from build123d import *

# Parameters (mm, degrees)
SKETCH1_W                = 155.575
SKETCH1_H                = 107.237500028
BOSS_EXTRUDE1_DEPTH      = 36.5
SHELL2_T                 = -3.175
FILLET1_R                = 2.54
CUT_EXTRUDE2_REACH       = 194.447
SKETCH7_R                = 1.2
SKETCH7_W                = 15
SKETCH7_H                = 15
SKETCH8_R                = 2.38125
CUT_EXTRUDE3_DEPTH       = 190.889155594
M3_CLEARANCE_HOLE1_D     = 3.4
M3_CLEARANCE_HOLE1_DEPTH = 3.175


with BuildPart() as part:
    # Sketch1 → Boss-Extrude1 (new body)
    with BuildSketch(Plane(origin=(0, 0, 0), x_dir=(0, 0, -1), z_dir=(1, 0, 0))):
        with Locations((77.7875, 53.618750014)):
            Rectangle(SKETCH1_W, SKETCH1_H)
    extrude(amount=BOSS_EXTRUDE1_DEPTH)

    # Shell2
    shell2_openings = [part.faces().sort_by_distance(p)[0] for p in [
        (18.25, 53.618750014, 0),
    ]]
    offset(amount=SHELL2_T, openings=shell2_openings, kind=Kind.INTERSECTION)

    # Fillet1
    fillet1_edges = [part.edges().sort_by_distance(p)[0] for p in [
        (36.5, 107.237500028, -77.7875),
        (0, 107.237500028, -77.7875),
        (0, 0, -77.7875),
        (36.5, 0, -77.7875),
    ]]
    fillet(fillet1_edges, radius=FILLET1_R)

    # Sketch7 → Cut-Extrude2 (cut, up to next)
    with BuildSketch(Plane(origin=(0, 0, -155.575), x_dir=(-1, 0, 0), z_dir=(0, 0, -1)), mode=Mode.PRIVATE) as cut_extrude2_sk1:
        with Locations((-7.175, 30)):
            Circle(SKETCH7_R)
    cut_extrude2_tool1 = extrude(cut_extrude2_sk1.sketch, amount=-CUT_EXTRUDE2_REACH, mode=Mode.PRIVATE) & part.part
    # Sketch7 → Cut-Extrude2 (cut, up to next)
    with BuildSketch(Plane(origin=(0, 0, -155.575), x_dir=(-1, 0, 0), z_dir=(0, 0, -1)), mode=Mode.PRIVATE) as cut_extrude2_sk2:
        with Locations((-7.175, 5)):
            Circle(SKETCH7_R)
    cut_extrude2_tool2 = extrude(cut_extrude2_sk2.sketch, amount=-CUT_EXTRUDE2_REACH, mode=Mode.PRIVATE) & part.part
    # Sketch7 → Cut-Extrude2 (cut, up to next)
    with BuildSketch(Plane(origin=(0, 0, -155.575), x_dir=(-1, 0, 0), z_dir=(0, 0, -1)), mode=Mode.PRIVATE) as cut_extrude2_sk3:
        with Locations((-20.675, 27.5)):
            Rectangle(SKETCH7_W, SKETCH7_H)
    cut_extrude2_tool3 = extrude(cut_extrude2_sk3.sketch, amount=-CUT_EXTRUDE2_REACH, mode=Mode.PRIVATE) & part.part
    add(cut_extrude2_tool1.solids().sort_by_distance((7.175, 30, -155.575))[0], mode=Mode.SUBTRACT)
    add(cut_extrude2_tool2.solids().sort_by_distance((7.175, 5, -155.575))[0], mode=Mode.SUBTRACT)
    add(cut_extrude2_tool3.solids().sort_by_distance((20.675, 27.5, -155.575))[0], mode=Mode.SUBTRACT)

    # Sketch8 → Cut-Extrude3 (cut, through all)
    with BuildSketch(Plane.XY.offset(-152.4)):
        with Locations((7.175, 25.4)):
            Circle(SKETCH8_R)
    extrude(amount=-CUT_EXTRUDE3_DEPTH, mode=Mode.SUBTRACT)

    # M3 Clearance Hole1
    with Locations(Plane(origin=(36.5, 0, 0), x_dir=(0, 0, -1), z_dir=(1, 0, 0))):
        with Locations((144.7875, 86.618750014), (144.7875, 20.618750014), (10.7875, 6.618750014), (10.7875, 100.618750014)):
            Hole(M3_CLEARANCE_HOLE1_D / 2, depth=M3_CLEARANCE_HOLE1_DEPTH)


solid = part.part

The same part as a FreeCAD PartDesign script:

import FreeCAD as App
import Part
import Sketcher

V = App.Vector


def edges_at(feature, points):
    """Names of the edges that pass closest to the given points."""
    edges = feature.Shape.Edges
    near = lambda p: min(range(len(edges)), key=lambda i: edges[i].distToShape(Part.Vertex(*p))[0])
    return sorted({f"Edge{near(p) + 1}" for p in points})


def faces_at(feature, points):
    """Names of the faces that lie closest to the given points."""
    faces = feature.Shape.Faces
    near = lambda p: min(range(len(faces)), key=lambda i: faces[i].distToShape(Part.Vertex(*p))[0])
    return sorted({f"Face{near(p) + 1}" for p in points})

doc = App.newDocument("Part")
body = doc.addObject("PartDesign::Body", "Body")

sketch1 = body.newObject("Sketcher::SketchObject", "Sketch")
sketch1.AttachmentSupport = (doc.getObject("YZ_Plane"), [""])
sketch1.MapMode = "FlatFace"
sketch1.addGeometry(Part.LineSegment(V(107, 0, 0), V(0, 0, 0)), False)
sketch1.addGeometry(Part.LineSegment(V(0, 0, 0), V(0, -156, 0)), False)
sketch1.addGeometry(Part.LineSegment(V(0, -156, 0), V(107, -156, 0)), False)
sketch1.addGeometry(Part.LineSegment(V(107, -156, 0), V(107, 0, 0)), False)
sketch1.addConstraint(Sketcher.Constraint("Coincident", 0, 2, 1, 1))
sketch1.addConstraint(Sketcher.Constraint("Coincident", 1, 2, 2, 1))
sketch1.addConstraint(Sketcher.Constraint("Coincident", 2, 2, 3, 1))
sketch1.addConstraint(Sketcher.Constraint("Coincident", 3, 2, 0, 1))
sketch1.addConstraint(Sketcher.Constraint("Horizontal", 0))
sketch1.addConstraint(Sketcher.Constraint("Vertical", 1))
sketch1.addConstraint(Sketcher.Constraint("Horizontal", 2))
sketch1.addConstraint(Sketcher.Constraint("Vertical", 3))
sketch1.addConstraint(Sketcher.Constraint("Coincident", 0, 2, -1, 1))
sketch1.addConstraint(Sketcher.Constraint("DistanceY", 1, 2, 1, 1, 155.575))
sketch1.addConstraint(Sketcher.Constraint("DistanceX", 0, 2, 0, 1, 107.2375))
pad1 = body.newObject("PartDesign::Pad", "Pad")
pad1.Profile = sketch1
pad1.Length = 36.5
doc.recompute()

thickness = body.newObject("PartDesign::Thickness", "Thickness")
thickness.Base = (pad1, faces_at(pad1, [(18.25, 53.619, 0)]))
thickness.Value = 3.175
thickness.Reversed = True
thickness.Join = "Intersection"
doc.recompute()

fillet = body.newObject("PartDesign::Fillet", "Fillet")
fillet.Base = (thickness, edges_at(thickness, [
    (36.5, 107.238, -77.787),
    (0, 107.238, -77.787),
    (0, 0, -77.787),
    (36.5, 0, -77.787),
]))
fillet.Radius = 2.54

sketch2 = body.newObject("Sketcher::SketchObject", "Sketch001")
sketch2.AttachmentSupport = (doc.getObject("XY_Plane"), [""])
sketch2.MapMode = "FlatFace"
sketch2.AttachmentOffset = App.Placement(V(0, 0, -155.575), App.Rotation())
sketch2.addGeometry(Part.Circle(V(7.2, 30, 0), V(0, 0, 1), 1.2), False)
sketch2.addConstraint(Sketcher.Constraint("Diameter", 0, 2.4))
sketch2.addConstraint(Sketcher.Constraint("DistanceY", -1, 1, 0, 3, 30.0))
sketch2.addConstraint(Sketcher.Constraint("DistanceX", -1, 1, 0, 3, 7.175))
pocket1 = body.newObject("PartDesign::Pocket", "Pocket")
pocket1.Profile = sketch2
pocket1.Type = "UpToFirst"
pocket1.Reversed = True

sketch3 = body.newObject("Sketcher::SketchObject", "Sketch002")
sketch3.AttachmentSupport = (doc.getObject("XY_Plane"), [""])
sketch3.MapMode = "FlatFace"
sketch3.AttachmentOffset = App.Placement(V(0, 0, -155.575), App.Rotation())
sketch3.addGeometry(Part.Circle(V(7.2, 5, 0), V(0, 0, 1), 1.2), False)
sketch3.addConstraint(Sketcher.Constraint("Diameter", 0, 2.4))
sketch3.addConstraint(Sketcher.Constraint("DistanceY", -1, 1, 0, 3, 5.0))
sketch3.addConstraint(Sketcher.Constraint("DistanceX", -1, 1, 0, 3, 7.175))
pocket2 = body.newObject("PartDesign::Pocket", "Pocket001")
pocket2.Profile = sketch3
pocket2.Type = "UpToFirst"
pocket2.Reversed = True

sketch4 = body.newObject("Sketcher::SketchObject", "Sketch003")
sketch4.AttachmentSupport = (doc.getObject("XY_Plane"), [""])
sketch4.MapMode = "FlatFace"
sketch4.AttachmentOffset = App.Placement(V(0, 0, -155.575), App.Rotation())
sketch4.addGeometry(Part.LineSegment(V(28, 35, 0), V(28, 20, 0)), False)
sketch4.addGeometry(Part.LineSegment(V(28, 20, 0), V(13, 20, 0)), False)
sketch4.addGeometry(Part.LineSegment(V(13, 20, 0), V(13, 35, 0)), False)
sketch4.addGeometry(Part.LineSegment(V(13, 35, 0), V(28, 35, 0)), False)
sketch4.addConstraint(Sketcher.Constraint("Coincident", 0, 2, 1, 1))
sketch4.addConstraint(Sketcher.Constraint("Coincident", 1, 2, 2, 1))
sketch4.addConstraint(Sketcher.Constraint("Coincident", 2, 2, 3, 1))
sketch4.addConstraint(Sketcher.Constraint("Coincident", 3, 2, 0, 1))
sketch4.addConstraint(Sketcher.Constraint("Vertical", 0))
sketch4.addConstraint(Sketcher.Constraint("Horizontal", 1))
sketch4.addConstraint(Sketcher.Constraint("Vertical", 2))
sketch4.addConstraint(Sketcher.Constraint("Horizontal", 3))
sketch4.addConstraint(Sketcher.Constraint("Equal", 3, 0))
sketch4.addConstraint(Sketcher.Constraint("DistanceX", 1, 2, 1, 1, 15.0))
sketch4.addConstraint(Sketcher.Constraint("DistanceY", -1, 1, 0, 2, 20.0))
sketch4.addConstraint(Sketcher.Constraint("DistanceX", -1, 1, 0, 2, 28.175))
pocket3 = body.newObject("PartDesign::Pocket", "Pocket002")
pocket3.Profile = sketch4
pocket3.Type = "UpToFirst"
pocket3.Reversed = True

sketch5 = body.newObject("Sketcher::SketchObject", "Sketch004")
sketch5.AttachmentSupport = (doc.getObject("XY_Plane"), [""])
sketch5.MapMode = "FlatFace"
sketch5.AttachmentOffset = App.Placement(V(0, 0, -152.4), App.Rotation())
sketch5.addGeometry(Part.Circle(V(7.2, 25.4, 0), V(0, 0, 1), 2.4), False)
sketch5.addConstraint(Sketcher.Constraint("Diameter", 0, 4.7625))
sketch5.addConstraint(Sketcher.Constraint("DistanceY", -1, 1, 0, 3, 25.4))
sketch5.addConstraint(Sketcher.Constraint("DistanceX", -1, 1, 0, 3, 7.175))
pocket4 = body.newObject("PartDesign::Pocket", "Pocket003")
pocket4.Profile = sketch5
pocket4.Type = "ThroughAll"

sketch6 = body.newObject("Sketcher::SketchObject", "Sketch005")
sketch6.AttachmentSupport = (doc.getObject("YZ_Plane"), [""])
sketch6.MapMode = "FlatFace"
sketch6.AttachmentOffset = App.Placement(V(0, 0, 36.5), App.Rotation())
sketch6.addGeometry(Part.Circle(V(86.6, -144.8, 0), V(0, 0, 1), 1.7), False)
sketch6.addGeometry(Part.Circle(V(20.6, -144.8, 0), V(0, 0, 1), 1.7), False)
sketch6.addGeometry(Part.Circle(V(6.6, -10.8, 0), V(0, 0, 1), 1.7), False)
sketch6.addGeometry(Part.Circle(V(100.6, -10.8, 0), V(0, 0, 1), 1.7), False)
sketch6.addConstraint(Sketcher.Constraint("Equal", 0, 1))
sketch6.addConstraint(Sketcher.Constraint("Equal", 1, 2))
sketch6.addConstraint(Sketcher.Constraint("Equal", 2, 3))
sketch6.addConstraint(Sketcher.Constraint("Horizontal", 0, 3, 1, 3))
sketch6.addConstraint(Sketcher.Constraint("Horizontal", 2, 3, 3, 3))
sketch6.addConstraint(Sketcher.Constraint("Diameter", 0, 3.4))
sketch6.addConstraint(Sketcher.Constraint("DistanceX", 1, 3, 0, 3, 66.0))
sketch6.addConstraint(Sketcher.Constraint("DistanceX", 2, 3, 1, 3, 14.0))
sketch6.addConstraint(Sketcher.Constraint("DistanceY", 1, 3, 2, 3, 134.0))
sketch6.addConstraint(Sketcher.Constraint("DistanceX", 2, 3, 3, 3, 94.0))
sketch6.addConstraint(Sketcher.Constraint("DistanceY", 0, 3, -1, 1, 144.7875))
sketch6.addConstraint(Sketcher.Constraint("DistanceX", -1, 1, 0, 3, 86.61875))
doc.recompute()
hole = body.newObject("PartDesign::Hole", "Hole")
hole.Profile = sketch6
hole.ThreadType = "None"
hole.Diameter = 3.4
hole.DepthType = "Dimension"
hole.Depth = 3.175
hole.DrillPoint = "Flat"

doc.recompute()
